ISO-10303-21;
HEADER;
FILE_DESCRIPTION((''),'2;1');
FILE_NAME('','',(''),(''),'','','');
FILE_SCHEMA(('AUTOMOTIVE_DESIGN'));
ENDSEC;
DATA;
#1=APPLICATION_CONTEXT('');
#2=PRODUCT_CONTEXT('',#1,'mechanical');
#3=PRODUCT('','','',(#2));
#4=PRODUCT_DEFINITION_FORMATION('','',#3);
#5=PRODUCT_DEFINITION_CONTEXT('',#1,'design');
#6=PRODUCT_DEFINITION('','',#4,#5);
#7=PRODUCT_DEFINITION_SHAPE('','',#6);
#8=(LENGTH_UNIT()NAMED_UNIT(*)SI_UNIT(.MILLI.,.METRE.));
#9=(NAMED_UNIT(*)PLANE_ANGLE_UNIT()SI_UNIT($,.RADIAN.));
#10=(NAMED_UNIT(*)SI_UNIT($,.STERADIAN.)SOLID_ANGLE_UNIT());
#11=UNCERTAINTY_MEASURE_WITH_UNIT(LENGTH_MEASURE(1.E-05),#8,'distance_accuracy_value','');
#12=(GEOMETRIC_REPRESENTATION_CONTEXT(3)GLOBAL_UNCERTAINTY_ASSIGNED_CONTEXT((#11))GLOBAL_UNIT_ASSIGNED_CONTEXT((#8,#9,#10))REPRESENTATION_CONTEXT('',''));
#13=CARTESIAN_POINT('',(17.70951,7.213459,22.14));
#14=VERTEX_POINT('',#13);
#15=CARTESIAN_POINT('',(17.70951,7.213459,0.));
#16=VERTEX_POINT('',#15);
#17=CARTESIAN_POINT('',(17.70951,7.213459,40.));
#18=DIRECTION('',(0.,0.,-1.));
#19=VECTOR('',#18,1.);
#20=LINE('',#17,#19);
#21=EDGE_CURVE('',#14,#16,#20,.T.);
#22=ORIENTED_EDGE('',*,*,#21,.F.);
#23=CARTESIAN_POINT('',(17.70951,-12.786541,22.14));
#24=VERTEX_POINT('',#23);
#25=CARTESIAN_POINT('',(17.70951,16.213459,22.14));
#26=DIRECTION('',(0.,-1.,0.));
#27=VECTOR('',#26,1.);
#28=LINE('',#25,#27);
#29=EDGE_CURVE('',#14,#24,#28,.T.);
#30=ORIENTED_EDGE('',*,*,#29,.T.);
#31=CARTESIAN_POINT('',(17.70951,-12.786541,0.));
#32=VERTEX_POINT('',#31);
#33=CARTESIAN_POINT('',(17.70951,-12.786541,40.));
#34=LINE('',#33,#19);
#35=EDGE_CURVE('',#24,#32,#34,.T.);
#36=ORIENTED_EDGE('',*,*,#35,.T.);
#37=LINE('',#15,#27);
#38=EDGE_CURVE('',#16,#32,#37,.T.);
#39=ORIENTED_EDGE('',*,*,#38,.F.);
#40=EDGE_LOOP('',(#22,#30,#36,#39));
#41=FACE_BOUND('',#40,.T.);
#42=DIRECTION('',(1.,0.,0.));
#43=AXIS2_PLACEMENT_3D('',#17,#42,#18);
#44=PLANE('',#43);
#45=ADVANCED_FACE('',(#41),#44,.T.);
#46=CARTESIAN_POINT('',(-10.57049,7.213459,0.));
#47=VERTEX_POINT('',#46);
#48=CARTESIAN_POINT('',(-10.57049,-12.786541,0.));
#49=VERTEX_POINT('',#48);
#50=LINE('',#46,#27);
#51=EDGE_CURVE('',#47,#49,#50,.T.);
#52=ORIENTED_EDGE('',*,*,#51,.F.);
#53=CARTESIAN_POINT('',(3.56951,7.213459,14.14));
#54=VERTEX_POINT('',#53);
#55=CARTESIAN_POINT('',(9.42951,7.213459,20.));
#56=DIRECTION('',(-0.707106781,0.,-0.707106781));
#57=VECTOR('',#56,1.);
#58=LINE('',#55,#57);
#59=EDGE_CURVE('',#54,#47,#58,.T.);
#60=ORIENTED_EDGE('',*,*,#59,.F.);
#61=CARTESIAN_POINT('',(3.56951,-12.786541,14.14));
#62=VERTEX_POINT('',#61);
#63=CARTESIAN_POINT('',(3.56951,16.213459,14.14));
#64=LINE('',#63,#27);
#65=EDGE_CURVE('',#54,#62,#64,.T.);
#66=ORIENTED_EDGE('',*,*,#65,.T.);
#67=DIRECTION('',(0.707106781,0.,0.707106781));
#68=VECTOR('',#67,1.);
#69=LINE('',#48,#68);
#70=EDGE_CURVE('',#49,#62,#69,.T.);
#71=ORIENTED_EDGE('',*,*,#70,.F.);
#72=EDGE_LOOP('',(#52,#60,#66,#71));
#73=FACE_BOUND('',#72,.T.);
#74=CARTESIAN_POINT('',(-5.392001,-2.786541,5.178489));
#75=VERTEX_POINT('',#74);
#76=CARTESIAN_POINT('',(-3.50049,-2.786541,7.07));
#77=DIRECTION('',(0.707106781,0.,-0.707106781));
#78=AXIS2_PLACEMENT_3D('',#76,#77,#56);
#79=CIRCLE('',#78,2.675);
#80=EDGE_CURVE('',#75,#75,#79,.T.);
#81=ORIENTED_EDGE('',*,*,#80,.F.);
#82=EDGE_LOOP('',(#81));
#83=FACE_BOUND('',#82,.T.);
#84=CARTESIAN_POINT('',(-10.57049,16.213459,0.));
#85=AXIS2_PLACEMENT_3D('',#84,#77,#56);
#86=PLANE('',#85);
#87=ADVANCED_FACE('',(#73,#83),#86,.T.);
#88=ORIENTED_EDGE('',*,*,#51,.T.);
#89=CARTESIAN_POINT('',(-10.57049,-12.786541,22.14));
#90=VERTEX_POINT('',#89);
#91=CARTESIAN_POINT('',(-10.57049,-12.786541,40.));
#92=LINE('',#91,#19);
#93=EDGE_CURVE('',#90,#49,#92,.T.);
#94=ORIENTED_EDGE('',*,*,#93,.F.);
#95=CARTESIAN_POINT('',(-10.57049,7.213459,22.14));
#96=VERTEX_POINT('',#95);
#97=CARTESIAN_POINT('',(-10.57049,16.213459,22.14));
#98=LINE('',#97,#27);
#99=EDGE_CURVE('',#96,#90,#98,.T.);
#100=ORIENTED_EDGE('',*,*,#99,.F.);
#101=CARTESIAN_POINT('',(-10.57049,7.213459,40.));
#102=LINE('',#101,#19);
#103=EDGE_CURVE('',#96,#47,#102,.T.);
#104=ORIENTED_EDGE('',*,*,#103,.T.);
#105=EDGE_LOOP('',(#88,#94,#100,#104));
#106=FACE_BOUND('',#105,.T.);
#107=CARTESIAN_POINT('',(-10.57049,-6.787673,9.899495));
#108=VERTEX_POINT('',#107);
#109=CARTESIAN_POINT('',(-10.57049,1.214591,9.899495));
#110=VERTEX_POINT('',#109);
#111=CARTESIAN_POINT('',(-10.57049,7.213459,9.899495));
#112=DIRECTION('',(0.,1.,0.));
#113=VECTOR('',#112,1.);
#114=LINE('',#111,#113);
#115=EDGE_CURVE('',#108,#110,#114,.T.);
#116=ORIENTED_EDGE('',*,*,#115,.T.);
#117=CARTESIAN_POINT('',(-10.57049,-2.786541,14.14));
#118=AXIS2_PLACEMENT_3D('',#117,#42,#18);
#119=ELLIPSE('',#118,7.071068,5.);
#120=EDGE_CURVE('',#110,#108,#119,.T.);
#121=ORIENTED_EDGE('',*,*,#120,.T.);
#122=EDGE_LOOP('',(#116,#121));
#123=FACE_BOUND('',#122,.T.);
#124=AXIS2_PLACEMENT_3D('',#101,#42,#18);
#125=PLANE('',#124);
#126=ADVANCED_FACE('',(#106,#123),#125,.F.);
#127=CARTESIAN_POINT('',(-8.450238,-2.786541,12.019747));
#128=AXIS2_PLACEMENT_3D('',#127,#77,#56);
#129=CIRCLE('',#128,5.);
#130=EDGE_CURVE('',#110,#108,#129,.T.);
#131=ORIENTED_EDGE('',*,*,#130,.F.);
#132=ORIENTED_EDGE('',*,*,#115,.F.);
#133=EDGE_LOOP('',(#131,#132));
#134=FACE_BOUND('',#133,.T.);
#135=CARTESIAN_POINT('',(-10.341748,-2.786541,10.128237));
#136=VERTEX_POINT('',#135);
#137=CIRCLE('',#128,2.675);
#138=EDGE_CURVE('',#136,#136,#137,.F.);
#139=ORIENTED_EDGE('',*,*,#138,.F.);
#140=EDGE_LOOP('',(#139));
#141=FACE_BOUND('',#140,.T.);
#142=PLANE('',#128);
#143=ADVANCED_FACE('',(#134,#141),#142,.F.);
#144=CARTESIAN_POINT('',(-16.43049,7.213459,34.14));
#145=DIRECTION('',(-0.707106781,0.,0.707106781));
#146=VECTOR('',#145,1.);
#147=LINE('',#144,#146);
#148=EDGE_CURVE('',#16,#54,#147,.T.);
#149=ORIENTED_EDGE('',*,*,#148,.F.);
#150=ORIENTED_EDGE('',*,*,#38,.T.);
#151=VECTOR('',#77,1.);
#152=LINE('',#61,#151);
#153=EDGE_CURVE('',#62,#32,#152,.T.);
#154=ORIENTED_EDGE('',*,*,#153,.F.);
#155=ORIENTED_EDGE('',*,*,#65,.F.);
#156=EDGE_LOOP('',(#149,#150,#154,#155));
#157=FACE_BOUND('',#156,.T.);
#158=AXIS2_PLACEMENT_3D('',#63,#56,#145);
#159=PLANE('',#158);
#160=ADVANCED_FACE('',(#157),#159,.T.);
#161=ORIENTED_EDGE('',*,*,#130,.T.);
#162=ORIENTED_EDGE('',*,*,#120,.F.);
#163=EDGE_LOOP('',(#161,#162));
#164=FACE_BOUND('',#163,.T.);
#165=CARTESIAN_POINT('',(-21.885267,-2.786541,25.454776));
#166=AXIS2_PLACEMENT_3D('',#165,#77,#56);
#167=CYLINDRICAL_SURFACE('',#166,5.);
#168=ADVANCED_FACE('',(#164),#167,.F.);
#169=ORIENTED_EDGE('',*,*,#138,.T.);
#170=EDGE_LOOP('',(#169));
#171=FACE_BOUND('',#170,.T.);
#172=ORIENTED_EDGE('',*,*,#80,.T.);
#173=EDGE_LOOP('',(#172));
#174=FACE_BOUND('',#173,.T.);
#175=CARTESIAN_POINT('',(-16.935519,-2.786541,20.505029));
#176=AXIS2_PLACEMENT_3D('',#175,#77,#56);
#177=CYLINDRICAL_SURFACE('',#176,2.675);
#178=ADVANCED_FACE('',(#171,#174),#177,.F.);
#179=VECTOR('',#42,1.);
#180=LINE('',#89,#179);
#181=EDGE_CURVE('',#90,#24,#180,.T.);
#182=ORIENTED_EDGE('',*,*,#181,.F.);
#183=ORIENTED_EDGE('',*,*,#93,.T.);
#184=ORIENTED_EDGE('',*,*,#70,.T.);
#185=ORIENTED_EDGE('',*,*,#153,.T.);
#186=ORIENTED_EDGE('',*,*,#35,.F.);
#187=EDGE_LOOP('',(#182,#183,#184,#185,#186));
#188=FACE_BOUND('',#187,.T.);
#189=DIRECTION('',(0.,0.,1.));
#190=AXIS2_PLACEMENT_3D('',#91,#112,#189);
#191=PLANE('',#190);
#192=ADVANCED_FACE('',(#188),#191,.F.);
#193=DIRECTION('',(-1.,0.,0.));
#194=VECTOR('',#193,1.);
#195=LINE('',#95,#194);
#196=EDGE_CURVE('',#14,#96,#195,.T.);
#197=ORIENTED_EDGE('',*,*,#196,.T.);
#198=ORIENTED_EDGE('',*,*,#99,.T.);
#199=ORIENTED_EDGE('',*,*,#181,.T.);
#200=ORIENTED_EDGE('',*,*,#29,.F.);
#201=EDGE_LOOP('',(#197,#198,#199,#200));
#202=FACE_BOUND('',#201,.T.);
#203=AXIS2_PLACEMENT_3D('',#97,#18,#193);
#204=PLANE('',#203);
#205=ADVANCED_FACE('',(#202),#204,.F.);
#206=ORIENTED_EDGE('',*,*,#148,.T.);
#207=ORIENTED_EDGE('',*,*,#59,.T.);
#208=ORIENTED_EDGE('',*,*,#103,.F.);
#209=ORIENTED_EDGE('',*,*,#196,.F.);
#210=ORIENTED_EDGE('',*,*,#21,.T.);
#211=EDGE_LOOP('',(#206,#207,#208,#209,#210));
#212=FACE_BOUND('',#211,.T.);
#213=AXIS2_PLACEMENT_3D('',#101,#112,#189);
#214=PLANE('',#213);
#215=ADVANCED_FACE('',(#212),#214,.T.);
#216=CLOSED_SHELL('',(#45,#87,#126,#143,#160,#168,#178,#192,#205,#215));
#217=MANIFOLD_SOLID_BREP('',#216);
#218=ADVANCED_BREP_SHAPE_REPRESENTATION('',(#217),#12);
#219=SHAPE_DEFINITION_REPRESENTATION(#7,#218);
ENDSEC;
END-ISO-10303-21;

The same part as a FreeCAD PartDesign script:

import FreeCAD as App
import Part
import Sketcher


def add_polygon(sketch, points):
    """Adds a closed chain of lines whose ends are joined by coincident constraints."""
    first, n = sketch.GeometryCount, len(points)
    for a, b in zip(points, points[1:] + points[:1]):
        sketch.addGeometry(Part.LineSegment(App.Vector(*a, 0), App.Vector(*b, 0)), False)
    for i in range(n):
        sketch.addConstraint(Sketcher.Constraint("Coincident", first + i, 2, first + (i + 1) % n, 1))

doc = App.newDocument("Part")
body = doc.addObject("PartDesign::Body", "Body")

sketch1 = doc.addObject("Sketcher::SketchObject", "Sketch")
body.addObject(sketch1)
sketch1.AttachmentSupport = (doc.XY_Plane, [""])
sketch1.MapMode = "FlatFace"
add_polygon(sketch1, [(-11, 7), (-11, -13), (18, -13), (18, 7)])
sketch1.addConstraint([
    Sketcher.Constraint("Vertical", 0),
    Sketcher.Constraint("Horizontal", 1),
    Sketcher.Constraint("Vertical", 2),
    Sketcher.Constraint("Horizontal", 3),
    Sketcher.Constraint("DistanceY", 0, 2, 0, 1, 20.0),
    Sketcher.Constraint("DistanceX", 1, 1, 1, 2, 28.28),
    Sketcher.Constraint("DistanceX", 0, 2, -1, 1, 10.57049),
    Sketcher.Constraint("DistanceY", 0, 2, -1, 1, 12.786541),
])
pad1 = doc.addObject("PartDesign::Pad", "Pad")
body.addObject(pad1)
pad1.Profile = sketch1
pad1.Length = 40

sketch2 = doc.addObject("Sketcher::SketchObject", "Sketch001")
body.addObject(sketch2)
sketch2.AttachmentSupport = (doc.XZ_Plane, [""])
sketch2.MapMode = "FlatFace"
sketch2.AttachmentOffset = App.Placement(App.Vector(0, 0, 12.786541), App.Rotation())
add_polygon(sketch2, [(4, 14), (-11, 0), (18, 0)])
add_polygon(sketch2, [(-11, 40), (-11, 22), (18, 22), (18, 40)])
sketch2.addConstraint([
    Sketcher.Constraint("Horizontal", 1),
    Sketcher.Constraint("Vertical", 3),
    Sketcher.Constraint("Horizontal", 4),
    Sketcher.Constraint("Vertical", 5),
    Sketcher.Constraint("Horizontal", 6),
    Sketcher.Constraint("PointOnObject", 0, 2, -1),
    Sketcher.Constraint("Perpendicular", 0, 2),
    Sketcher.Constraint("Vertical", 0, 2, 3, 2),
    Sketcher.Constraint("Vertical", 1, 2, 4, 2),
    Sketcher.Constraint("Equal", 0, 2),
    Sketcher.Constraint("DistanceY", -1, 1, 5, 2, 40.0),
    Sketcher.Constraint("DistanceY", 2, 2, 3, 2, 8.0),
    Sketcher.Constraint("DistanceX", 1, 1, 1, 2, 28.28),
    Sketcher.Constraint("DistanceX", 0, 2, -1, 1, 10.57049),
])
pocket1 = doc.addObject("PartDesign::Pocket", "Pocket")
body.addObject(pocket1)
pocket1.Profile = sketch2
pocket1.Length = 29

sketch3 = doc.addObject("Sketcher::SketchObject", "Sketch002")
body.addObject(sketch3)
sketch3.Placement = App.Placement(App.Vector(-5.285245, 0, 5.285245), App.Rotation(App.Vector(-0.707106781, 0, -0.707106781), App.Vector(0, 0.999999999, 0), App.Vector(0.707106781, 0, -0.707106781), "ZXY"))
sketch3.addGeometry(Part.Circle(App.Vector(-2.5, -2.8, 0), App.Vector(0, 0, 1), 2.7), False)
sketch3.addConstraint([
    Sketcher.Constraint("Diameter", 0, 5.35),
    Sketcher.Constraint("DistanceY", 0, 3, -1, 1, 2.786541),
    Sketcher.Constraint("DistanceX", 0, 3, -1, 1, 2.524024),
])
pocket2 = doc.addObject("PartDesign::Pocket", "Pocket001")
body.addObject(pocket2)
pocket2.Profile = sketch3
pocket2.Length = 19

sketch4 = doc.addObject("Sketcher::SketchObject", "Sketch003")
body.addObject(sketch4)
sketch4.Placement = App.Placement(App.Vector(-10.234993, 0, 10.234993), App.Rotation(App.Vector(-0.707106781, 0, -0.707106781), App.Vector(0, 0.999999999, 0), App.Vector(0.707106781, 0, -0.707106781), "ZXY"))
sketch4.addGeometry(Part.Circle(App.Vector(-3, -3, 0), App.Vector(0, 0, 1), 5), False)
sketch4.addConstraint([
    Sketcher.Constraint("Diameter", 0, 10.0),
    Sketcher.Constraint("DistanceY", 0, 3, -1, 1, 2.786541),
    Sketcher.Constraint("DistanceX", 0, 3, -1, 1, 2.524024),
])
pocket3 = doc.addObject("PartDesign::Pocket", "Pocket002")
body.addObject(pocket3)
pocket3.Profile = sketch4
pocket3.Length = 19

doc.recompute()
